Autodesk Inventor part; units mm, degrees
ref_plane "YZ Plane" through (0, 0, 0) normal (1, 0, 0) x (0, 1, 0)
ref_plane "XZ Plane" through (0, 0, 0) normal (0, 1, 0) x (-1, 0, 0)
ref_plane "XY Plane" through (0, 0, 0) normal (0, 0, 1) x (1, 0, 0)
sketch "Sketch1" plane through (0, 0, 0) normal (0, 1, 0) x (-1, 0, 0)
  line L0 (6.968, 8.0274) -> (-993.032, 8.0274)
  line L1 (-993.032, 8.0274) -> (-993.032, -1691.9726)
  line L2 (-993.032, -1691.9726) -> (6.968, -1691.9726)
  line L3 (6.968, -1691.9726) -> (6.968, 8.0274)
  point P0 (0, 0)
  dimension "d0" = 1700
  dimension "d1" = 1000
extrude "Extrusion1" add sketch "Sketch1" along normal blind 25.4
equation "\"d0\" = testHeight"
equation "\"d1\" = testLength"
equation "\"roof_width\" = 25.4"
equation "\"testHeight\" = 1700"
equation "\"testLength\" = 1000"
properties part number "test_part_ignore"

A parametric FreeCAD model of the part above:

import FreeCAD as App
import Part
import Sketcher
from FreeCAD import Vector

doc = App.newDocument("Part")
body = doc.addObject("PartDesign::Body", "Body")

# Sketch on XZ plane
sketch1 = doc.addObject("Sketcher::SketchObject", "Sketch")
body.addObject(sketch1)
sketch1.AttachmentSupport = (doc.XZ_Plane, [""])
sketch1.MapMode = "FlatFace"
sketch1.addGeometry(Part.LineSegment(Vector(-6.968, -1691.9726, 0), Vector(-6.968, 8.0274, 0)), False)
sketch1.addGeometry(Part.LineSegment(Vector(-6.968, 8.0274, 0), Vector(993.032, 8.0274, 0)), False)
sketch1.addGeometry(Part.LineSegment(Vector(993.032, 8.0274, 0), Vector(993.032, -1691.9726, 0)), False)
sketch1.addGeometry(Part.LineSegment(Vector(993.032, -1691.9726, 0), Vector(-6.968, -1691.9726, 0)), False)
sketch1.addConstraint(Sketcher.Constraint("Coincident", 0, 2, 1, 1))
sketch1.addConstraint(Sketcher.Constraint("Coincident", 1, 2, 2, 1))
sketch1.addConstraint(Sketcher.Constraint("Coincident", 2, 2, 3, 1))
sketch1.addConstraint(Sketcher.Constraint("Coincident", 3, 2, 0, 1))
sketch1.addConstraint(Sketcher.Constraint("Vertical", 0))
sketch1.addConstraint(Sketcher.Constraint("Horizontal", 1))
sketch1.addConstraint(Sketcher.Constraint("Vertical", 2))
sketch1.addConstraint(Sketcher.Constraint("Horizontal", 3))
sketch1.addConstraint(Sketcher.Constraint("DistanceX", 1, 1, 1, 2, 1000.0))
sketch1.addConstraint(Sketcher.Constraint("DistanceY", 0, 1, 0, 2, 1700.0))
sketch1.addConstraint(Sketcher.Constraint("DistanceX", 0, 2, -1, 1, 6.968))
sketch1.addConstraint(Sketcher.Constraint("DistanceY", -1, 1, 0, 2, 8.0274))
pad1 = doc.addObject("PartDesign::Pad", "Pad")
body.addObject(pad1)
pad1.Profile = sketch1
pad1.Length = 25.4
pad1.Reversed = True

doc.recompute()
